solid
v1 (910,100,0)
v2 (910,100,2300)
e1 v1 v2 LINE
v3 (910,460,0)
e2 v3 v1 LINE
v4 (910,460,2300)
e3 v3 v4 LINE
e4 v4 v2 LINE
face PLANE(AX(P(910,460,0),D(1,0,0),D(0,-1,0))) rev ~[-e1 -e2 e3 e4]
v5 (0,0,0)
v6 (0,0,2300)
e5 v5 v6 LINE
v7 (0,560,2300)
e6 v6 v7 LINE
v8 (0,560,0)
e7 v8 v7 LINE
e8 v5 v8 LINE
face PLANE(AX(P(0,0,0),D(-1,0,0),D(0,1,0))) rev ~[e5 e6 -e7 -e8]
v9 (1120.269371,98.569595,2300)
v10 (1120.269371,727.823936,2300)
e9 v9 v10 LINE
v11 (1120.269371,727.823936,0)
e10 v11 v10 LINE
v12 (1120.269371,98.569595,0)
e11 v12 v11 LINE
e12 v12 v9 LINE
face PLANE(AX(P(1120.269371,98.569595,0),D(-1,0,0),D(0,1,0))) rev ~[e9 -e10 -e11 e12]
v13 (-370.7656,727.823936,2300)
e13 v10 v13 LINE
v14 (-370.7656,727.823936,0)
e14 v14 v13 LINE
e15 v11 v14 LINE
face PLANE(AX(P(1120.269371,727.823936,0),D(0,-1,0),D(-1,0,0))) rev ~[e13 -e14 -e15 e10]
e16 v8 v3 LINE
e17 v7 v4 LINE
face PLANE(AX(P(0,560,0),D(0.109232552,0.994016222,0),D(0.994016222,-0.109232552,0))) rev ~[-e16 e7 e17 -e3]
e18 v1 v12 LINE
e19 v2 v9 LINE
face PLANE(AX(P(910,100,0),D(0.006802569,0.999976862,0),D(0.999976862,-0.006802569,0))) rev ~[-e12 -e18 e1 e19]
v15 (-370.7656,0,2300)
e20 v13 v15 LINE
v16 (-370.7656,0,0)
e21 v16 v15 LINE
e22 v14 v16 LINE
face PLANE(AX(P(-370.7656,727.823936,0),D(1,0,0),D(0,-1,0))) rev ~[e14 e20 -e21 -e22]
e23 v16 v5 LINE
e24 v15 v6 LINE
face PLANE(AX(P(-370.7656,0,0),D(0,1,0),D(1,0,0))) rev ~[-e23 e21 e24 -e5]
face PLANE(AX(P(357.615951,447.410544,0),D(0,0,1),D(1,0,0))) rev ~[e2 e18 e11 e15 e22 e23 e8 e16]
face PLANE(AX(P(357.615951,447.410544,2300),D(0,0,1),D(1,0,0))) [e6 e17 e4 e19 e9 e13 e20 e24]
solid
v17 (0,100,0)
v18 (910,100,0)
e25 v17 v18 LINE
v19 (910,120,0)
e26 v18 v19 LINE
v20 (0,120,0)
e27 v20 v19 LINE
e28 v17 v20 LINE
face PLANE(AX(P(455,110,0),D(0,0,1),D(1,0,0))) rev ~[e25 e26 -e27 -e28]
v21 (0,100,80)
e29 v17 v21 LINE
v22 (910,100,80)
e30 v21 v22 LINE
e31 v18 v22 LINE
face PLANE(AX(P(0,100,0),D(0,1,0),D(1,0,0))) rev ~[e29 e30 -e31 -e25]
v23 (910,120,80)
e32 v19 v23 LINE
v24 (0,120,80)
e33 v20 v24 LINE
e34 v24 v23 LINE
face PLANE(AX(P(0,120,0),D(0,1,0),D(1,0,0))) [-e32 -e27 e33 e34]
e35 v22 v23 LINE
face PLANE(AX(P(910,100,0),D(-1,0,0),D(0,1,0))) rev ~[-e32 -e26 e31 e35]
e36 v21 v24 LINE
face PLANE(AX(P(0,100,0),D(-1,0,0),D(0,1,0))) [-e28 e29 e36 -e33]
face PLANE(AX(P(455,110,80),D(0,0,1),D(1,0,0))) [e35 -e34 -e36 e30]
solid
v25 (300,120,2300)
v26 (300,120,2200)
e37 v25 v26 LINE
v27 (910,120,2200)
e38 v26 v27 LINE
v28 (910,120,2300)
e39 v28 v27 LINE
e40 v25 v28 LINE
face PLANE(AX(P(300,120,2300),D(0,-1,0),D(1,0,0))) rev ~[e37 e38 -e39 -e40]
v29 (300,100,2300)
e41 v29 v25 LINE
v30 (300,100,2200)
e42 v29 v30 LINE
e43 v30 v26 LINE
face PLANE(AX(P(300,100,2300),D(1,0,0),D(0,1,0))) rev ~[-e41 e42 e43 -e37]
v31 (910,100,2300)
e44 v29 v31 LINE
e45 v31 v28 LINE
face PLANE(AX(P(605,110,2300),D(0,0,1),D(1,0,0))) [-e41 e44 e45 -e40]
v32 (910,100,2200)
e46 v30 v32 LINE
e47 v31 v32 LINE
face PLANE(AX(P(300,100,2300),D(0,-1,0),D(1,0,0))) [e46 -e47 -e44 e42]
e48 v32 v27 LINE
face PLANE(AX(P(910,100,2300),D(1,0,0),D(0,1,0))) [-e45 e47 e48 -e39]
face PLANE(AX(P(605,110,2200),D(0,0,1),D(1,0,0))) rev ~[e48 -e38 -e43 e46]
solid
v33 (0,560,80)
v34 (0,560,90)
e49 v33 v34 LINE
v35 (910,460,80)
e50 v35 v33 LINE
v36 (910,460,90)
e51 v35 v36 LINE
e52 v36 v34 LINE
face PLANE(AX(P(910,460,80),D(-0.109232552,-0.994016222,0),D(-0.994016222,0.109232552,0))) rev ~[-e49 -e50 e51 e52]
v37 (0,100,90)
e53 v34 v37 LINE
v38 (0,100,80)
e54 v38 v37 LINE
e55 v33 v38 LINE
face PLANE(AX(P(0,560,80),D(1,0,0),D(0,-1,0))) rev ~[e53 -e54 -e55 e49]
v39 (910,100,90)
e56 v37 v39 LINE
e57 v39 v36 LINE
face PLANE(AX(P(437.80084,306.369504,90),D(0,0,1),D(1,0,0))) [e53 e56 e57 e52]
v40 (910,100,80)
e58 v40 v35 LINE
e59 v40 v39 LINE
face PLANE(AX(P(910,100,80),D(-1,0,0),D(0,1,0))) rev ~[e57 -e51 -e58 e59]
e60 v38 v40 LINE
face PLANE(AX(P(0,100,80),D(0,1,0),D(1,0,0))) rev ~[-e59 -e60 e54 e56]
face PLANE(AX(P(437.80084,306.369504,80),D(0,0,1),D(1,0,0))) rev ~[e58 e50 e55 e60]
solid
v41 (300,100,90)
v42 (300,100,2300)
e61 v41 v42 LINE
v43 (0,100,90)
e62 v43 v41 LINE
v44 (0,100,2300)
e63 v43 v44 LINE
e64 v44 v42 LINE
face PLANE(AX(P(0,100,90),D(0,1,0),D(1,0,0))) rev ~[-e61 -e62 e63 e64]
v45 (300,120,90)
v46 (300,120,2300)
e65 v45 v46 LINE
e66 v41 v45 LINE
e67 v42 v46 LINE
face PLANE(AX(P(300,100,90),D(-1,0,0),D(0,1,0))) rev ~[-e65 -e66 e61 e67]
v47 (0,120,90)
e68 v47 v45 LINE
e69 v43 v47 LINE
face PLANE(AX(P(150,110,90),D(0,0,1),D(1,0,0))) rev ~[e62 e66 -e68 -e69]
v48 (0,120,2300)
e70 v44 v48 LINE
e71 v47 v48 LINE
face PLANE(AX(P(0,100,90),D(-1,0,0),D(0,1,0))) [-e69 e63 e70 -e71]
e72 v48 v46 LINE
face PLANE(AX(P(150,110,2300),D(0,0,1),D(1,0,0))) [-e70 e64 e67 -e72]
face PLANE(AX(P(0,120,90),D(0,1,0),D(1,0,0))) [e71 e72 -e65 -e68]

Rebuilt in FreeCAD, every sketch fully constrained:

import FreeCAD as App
import Part
import Sketcher

doc = App.newDocument("Part")
body = doc.addObject("PartDesign::Body", "Body")

# Sketch on XY plane
sketch1 = body.newObject("Sketcher::SketchObject", "Sketch")
sketch1.AttachmentSupport = (doc.getObject("XY_Plane"), [""])
sketch1.MapMode = "FlatFace"
sketch1.addGeometry(Part.LineSegment(App.Vector(-370.7656, 0, 0), App.Vector(0, 0, 0)), False)
sketch1.addGeometry(Part.LineSegment(App.Vector(0, 0, 0), App.Vector(0, 560, 0)), False)
sketch1.addGeometry(Part.LineSegment(App.Vector(0, 560, 0), App.Vector(910, 460, 0)), False)
sketch1.addGeometry(Part.LineSegment(App.Vector(910, 460, 0), App.Vector(910, 100, 0)), False)
sketch1.addGeometry(Part.LineSegment(App.Vector(910, 100, 0), App.Vector(1120.269371, 98.569595, 0)), False)
sketch1.addGeometry(Part.LineSegment(App.Vector(1120.269371, 98.569595, 0), App.Vector(1120.269371, 727.823936, 0)), False)
sketch1.addGeometry(Part.LineSegment(App.Vector(1120.269371, 727.823936, 0), App.Vector(-370.7656, 727.823936, 0)), False)
sketch1.addGeometry(Part.LineSegment(App.Vector(-370.7656, 727.823936, 0), App.Vector(-370.7656, 0, 0)), False)
sketch1.addConstraint(Sketcher.Constraint("Coincident", 0, 2, 1, 1))
sketch1.addConstraint(Sketcher.Constraint("Coincident", 1, 2, 2, 1))
sketch1.addConstraint(Sketcher.Constraint("Coincident", 2, 2, 3, 1))
sketch1.addConstraint(Sketcher.Constraint("Coincident", 3, 2, 4, 1))
sketch1.addConstraint(Sketcher.Constraint("Coincident", 4, 2, 5, 1))
sketch1.addConstraint(Sketcher.Constraint("Coincident", 5, 2, 6, 1))
sketch1.addConstraint(Sketcher.Constraint("Coincident", 6, 2, 7, 1))
sketch1.addConstraint(Sketcher.Constraint("Coincident", 7, 2, 0, 1))
sketch1.addConstraint(Sketcher.Constraint("Horizontal", 0))
sketch1.addConstraint(Sketcher.Constraint("Vertical", 1))
sketch1.addConstraint(Sketcher.Constraint("Vertical", 3))
sketch1.addConstraint(Sketcher.Constraint("Vertical", 5))
sketch1.addConstraint(Sketcher.Constraint("Horizontal", 6))
sketch1.addConstraint(Sketcher.Constraint("Vertical", 7))
sketch1.addConstraint(Sketcher.Constraint("Coincident", 0, 2, -1, 1))
sketch1.addConstraint(Sketcher.Constraint("DistanceY", 1, 1, 1, 2, 560.0))
sketch1.addConstraint(Sketcher.Constraint("DistanceY", 3, 2, 3, 1, 360.0))
sketch1.addConstraint(Sketcher.Constraint("DistanceX", -1, 1, 2, 2, 910.0))
sketch1.addConstraint(Sketcher.Constraint("DistanceY", -1, 1, 2, 2, 460.0))
sketch1.addConstraint(Sketcher.Constraint("DistanceX", 0, 1, 0, 2, 370.7656))
sketch1.addConstraint(Sketcher.Constraint("DistanceX", 6, 2, 6, 1, 1491.034971))
sketch1.addConstraint(Sketcher.Constraint("DistanceY", 5, 1, 5, 2, 629.254341))
sketch1.addConstraint(Sketcher.Constraint("DistanceY", 7, 2, 7, 1, 727.823936))
pad1 = body.newObject("PartDesign::Pad", "Pad")
pad1.Profile = sketch1
pad1.Length = 2300
body2 = doc.addObject("PartDesign::Body", "Body001")

# Sketch on XY plane
sketch2 = body2.newObject("Sketcher::SketchObject", "Sketch001")
sketch2.AttachmentSupport = (doc.getObject("XY_Plane001"), [""])
sketch2.MapMode = "FlatFace"
sketch2.addGeometry(Part.LineSegment(App.Vector(0, 120, 0), App.Vector(0, 100, 0)), False)
sketch2.addGeometry(Part.LineSegment(App.Vector(0, 100, 0), App.Vector(910, 100, 0)), False)
sketch2.addGeometry(Part.LineSegment(App.Vector(910, 100, 0), App.Vector(910, 120, 0)), False)
sketch2.addGeometry(Part.LineSegment(App.Vector(910, 120, 0), App.Vector(0, 120, 0)), False)
sketch2.addConstraint(Sketcher.Constraint("Coincident", 0, 2, 1, 1))
sketch2.addConstraint(Sketcher.Constraint("Coincident", 1, 2, 2, 1))
sketch2.addConstraint(Sketcher.Constraint("Coincident", 2, 2, 3, 1))
sketch2.addConstraint(Sketcher.Constraint("Coincident", 3, 2, 0, 1))
sketch2.addConstraint(Sketcher.Constraint("Vertical", 0))
sketch2.addConstraint(Sketcher.Constraint("Horizontal", 1))
sketch2.addConstraint(Sketcher.Constraint("Vertical", 2))
sketch2.addConstraint(Sketcher.Constraint("Horizontal", 3))
sketch2.addConstraint(Sketcher.Constraint("PointOnObject", 0, 2, -2))
sketch2.addConstraint(Sketcher.Constraint("DistanceX", 1, 1, 1, 2, 910.0))
sketch2.addConstraint(Sketcher.Constraint("DistanceY", 0, 2, 0, 1, 20.0))
sketch2.addConstraint(Sketcher.Constraint("DistanceY", -1, 1, 0, 2, 100.0))
pad2 = body2.newObject("PartDesign::Pad", "Pad001")
pad2.Profile = sketch2
pad2.Length = 80
body3 = doc.addObject("PartDesign::Body", "Body002")

# Sketch on XY plane
sketch3 = body3.newObject("Sketcher::SketchObject", "Sketch002")
sketch3.AttachmentSupport = (doc.getObject("XY_Plane002"), [""])
sketch3.MapMode = "FlatFace"
sketch3.AttachmentOffset = App.Placement(App.Vector(0, 0, 80), App.Rotation())
sketch3.addGeometry(Part.LineSegment(App.Vector(0, 100, 0), App.Vector(910, 100, 0)), False)
sketch3.addGeometry(Part.LineSegment(App.Vector(910, 100, 0), App.Vector(910, 460, 0)), False)
sketch3.addGeometry(Part.LineSegment(App.Vector(910, 460, 0), App.Vector(0, 560, 0)), False)
sketch3.addGeometry(Part.LineSegment(App.Vector(0, 560, 0), App.Vector(0, 100, 0)), False)
sketch3.addConstraint(Sketcher.Constraint("Coincident", 0, 2, 1, 1))
sketch3.addConstraint(Sketcher.Constraint("Coincident", 1, 2, 2, 1))
sketch3.addConstraint(Sketcher.Constraint("Coincident", 2, 2, 3, 1))
sketch3.addConstraint(Sketcher.Constraint("Coincident", 3, 2, 0, 1))
sketch3.addConstraint(Sketcher.Constraint("Horizontal", 0))
sketch3.addConstraint(Sketcher.Constraint("Vertical", 1))
sketch3.addConstraint(Sketcher.Constraint("Vertical", 3))
sketch3.addConstraint(Sketcher.Constraint("PointOnObject", 2, 2, -2))
sketch3.addConstraint(Sketcher.Constraint("DistanceX", 0, 1, 0, 2, 910.0))
sketch3.addConstraint(Sketcher.Constraint("DistanceY", 1, 1, 1, 2, 360.0))
sketch3.addConstraint(Sketcher.Constraint("DistanceY", 3, 2, 3, 1, 460.0))
sketch3.addConstraint(Sketcher.Constraint("DistanceY", -1, 1, 0, 2, 100.0))
pad3 = body3.newObject("PartDesign::Pad", "Pad002")
pad3.Profile = sketch3
pad3.Length = 10
body4 = doc.addObject("PartDesign::Body", "Body003")

# Sketch on XY plane
sketch4 = body4.newObject("Sketcher::SketchObject", "Sketch003")
sketch4.AttachmentSupport = (doc.getObject("XY_Plane003"), [""])
sketch4.MapMode = "FlatFace"
sketch4.AttachmentOffset = App.Placement(App.Vector(0, 0, 90), App.Rotation())
sketch4.addGeometry(Part.LineSegment(App.Vector(0, 120, 0), App.Vector(0, 100, 0)), False)
sketch4.addGeometry(Part.LineSegment(App.Vector(0, 100, 0), App.Vector(300, 100, 0)), False)
sketch4.addGeometry(Part.LineSegment(App.Vector(300, 100, 0), App.Vector(300, 120, 0)), False)
sketch4.addGeometry(Part.LineSegment(App.Vector(300, 120, 0), App.Vector(0, 120, 0)), False)
sketch4.addConstraint(Sketcher.Constraint("Coincident", 0, 2, 1, 1))
sketch4.addConstraint(Sketcher.Constraint("Coincident", 1, 2, 2, 1))
sketch4.addConstraint(Sketcher.Constraint("Coincident", 2, 2, 3, 1))
sketch4.addConstraint(Sketcher.Constraint("Coincident", 3, 2, 0, 1))
sketch4.addConstraint(Sketcher.Constraint("Vertical", 0))
sketch4.addConstraint(Sketcher.Constraint("Horizontal", 1))
sketch4.addConstraint(Sketcher.Constraint("Vertical", 2))
sketch4.addConstraint(Sketcher.Constraint("Horizontal", 3))
sketch4.addConstraint(Sketcher.Constraint("PointOnObject", 0, 2, -2))
sketch4.addConstraint(Sketcher.Constraint("DistanceX", 1, 1, 1, 2, 300.0))
sketch4.addConstraint(Sketcher.Constraint("DistanceY", 0, 2, 0, 1, 20.0))
sketch4.addConstraint(Sketcher.Constraint("DistanceY", -1, 1, 0, 2, 100.0))
pad4 = body4.newObject("PartDesign::Pad", "Pad003")
pad4.Profile = sketch4
pad4.Length = 2210
body5 = doc.addObject("PartDesign::Body", "Body004")

# Sketch on XY plane
sketch5 = body5.newObject("Sketcher::SketchObject", "Sketch004")
sketch5.AttachmentSupport = (doc.getObject("XY_Plane004"), [""])
sketch5.MapMode = "FlatFace"
sketch5.AttachmentOffset = App.Placement(App.Vector(0, 0, 2300), App.Rotation())
sketch5.addGeometry(Part.LineSegment(App.Vector(300, 120, 0), App.Vector(300, 100, 0)), False)
sketch5.addGeometry(Part.LineSegment(App.Vector(300, 100, 0), App.Vector(910, 100, 0)), False)
sketch5.addGeometry(Part.LineSegment(App.Vector(910, 100, 0), App.Vector(910, 120, 0)), False)
sketch5.addGeometry(Part.LineSegment(App.Vector(910, 120, 0), App.Vector(300, 120, 0)), False)
sketch5.addConstraint(Sketcher.Constraint("Coincident", 0, 2, 1, 1))
sketch5.addConstraint(Sketcher.Constraint("Coincident", 1, 2, 2, 1))
sketch5.addConstraint(Sketcher.Constraint("Coincident", 2, 2, 3, 1))
sketch5.addConstraint(Sketcher.Constraint("Coincident", 3, 2, 0, 1))
sketch5.addConstraint(Sketcher.Constraint("Vertical", 0))
sketch5.addConstraint(Sketcher.Constraint("Horizontal", 1))
sketch5.addConstraint(Sketcher.Constraint("Vertical", 2))
sketch5.addConstraint(Sketcher.Constraint("Horizontal", 3))
sketch5.addConstraint(Sketcher.Constraint("DistanceX", 1, 1, 1, 2, 610.0))
sketch5.addConstraint(Sketcher.Constraint("DistanceY", 0, 2, 0, 1, 20.0))
sketch5.addConstraint(Sketcher.Constraint("DistanceX", -1, 1, 0, 2, 300.0))
sketch5.addConstraint(Sketcher.Constraint("DistanceY", -1, 1, 0, 2, 100.0))
pad5 = body5.newObject("PartDesign::Pad", "Pad004")
pad5.Profile = sketch5
pad5.Length = 100
pad5.Reversed = True

doc.recompute()
